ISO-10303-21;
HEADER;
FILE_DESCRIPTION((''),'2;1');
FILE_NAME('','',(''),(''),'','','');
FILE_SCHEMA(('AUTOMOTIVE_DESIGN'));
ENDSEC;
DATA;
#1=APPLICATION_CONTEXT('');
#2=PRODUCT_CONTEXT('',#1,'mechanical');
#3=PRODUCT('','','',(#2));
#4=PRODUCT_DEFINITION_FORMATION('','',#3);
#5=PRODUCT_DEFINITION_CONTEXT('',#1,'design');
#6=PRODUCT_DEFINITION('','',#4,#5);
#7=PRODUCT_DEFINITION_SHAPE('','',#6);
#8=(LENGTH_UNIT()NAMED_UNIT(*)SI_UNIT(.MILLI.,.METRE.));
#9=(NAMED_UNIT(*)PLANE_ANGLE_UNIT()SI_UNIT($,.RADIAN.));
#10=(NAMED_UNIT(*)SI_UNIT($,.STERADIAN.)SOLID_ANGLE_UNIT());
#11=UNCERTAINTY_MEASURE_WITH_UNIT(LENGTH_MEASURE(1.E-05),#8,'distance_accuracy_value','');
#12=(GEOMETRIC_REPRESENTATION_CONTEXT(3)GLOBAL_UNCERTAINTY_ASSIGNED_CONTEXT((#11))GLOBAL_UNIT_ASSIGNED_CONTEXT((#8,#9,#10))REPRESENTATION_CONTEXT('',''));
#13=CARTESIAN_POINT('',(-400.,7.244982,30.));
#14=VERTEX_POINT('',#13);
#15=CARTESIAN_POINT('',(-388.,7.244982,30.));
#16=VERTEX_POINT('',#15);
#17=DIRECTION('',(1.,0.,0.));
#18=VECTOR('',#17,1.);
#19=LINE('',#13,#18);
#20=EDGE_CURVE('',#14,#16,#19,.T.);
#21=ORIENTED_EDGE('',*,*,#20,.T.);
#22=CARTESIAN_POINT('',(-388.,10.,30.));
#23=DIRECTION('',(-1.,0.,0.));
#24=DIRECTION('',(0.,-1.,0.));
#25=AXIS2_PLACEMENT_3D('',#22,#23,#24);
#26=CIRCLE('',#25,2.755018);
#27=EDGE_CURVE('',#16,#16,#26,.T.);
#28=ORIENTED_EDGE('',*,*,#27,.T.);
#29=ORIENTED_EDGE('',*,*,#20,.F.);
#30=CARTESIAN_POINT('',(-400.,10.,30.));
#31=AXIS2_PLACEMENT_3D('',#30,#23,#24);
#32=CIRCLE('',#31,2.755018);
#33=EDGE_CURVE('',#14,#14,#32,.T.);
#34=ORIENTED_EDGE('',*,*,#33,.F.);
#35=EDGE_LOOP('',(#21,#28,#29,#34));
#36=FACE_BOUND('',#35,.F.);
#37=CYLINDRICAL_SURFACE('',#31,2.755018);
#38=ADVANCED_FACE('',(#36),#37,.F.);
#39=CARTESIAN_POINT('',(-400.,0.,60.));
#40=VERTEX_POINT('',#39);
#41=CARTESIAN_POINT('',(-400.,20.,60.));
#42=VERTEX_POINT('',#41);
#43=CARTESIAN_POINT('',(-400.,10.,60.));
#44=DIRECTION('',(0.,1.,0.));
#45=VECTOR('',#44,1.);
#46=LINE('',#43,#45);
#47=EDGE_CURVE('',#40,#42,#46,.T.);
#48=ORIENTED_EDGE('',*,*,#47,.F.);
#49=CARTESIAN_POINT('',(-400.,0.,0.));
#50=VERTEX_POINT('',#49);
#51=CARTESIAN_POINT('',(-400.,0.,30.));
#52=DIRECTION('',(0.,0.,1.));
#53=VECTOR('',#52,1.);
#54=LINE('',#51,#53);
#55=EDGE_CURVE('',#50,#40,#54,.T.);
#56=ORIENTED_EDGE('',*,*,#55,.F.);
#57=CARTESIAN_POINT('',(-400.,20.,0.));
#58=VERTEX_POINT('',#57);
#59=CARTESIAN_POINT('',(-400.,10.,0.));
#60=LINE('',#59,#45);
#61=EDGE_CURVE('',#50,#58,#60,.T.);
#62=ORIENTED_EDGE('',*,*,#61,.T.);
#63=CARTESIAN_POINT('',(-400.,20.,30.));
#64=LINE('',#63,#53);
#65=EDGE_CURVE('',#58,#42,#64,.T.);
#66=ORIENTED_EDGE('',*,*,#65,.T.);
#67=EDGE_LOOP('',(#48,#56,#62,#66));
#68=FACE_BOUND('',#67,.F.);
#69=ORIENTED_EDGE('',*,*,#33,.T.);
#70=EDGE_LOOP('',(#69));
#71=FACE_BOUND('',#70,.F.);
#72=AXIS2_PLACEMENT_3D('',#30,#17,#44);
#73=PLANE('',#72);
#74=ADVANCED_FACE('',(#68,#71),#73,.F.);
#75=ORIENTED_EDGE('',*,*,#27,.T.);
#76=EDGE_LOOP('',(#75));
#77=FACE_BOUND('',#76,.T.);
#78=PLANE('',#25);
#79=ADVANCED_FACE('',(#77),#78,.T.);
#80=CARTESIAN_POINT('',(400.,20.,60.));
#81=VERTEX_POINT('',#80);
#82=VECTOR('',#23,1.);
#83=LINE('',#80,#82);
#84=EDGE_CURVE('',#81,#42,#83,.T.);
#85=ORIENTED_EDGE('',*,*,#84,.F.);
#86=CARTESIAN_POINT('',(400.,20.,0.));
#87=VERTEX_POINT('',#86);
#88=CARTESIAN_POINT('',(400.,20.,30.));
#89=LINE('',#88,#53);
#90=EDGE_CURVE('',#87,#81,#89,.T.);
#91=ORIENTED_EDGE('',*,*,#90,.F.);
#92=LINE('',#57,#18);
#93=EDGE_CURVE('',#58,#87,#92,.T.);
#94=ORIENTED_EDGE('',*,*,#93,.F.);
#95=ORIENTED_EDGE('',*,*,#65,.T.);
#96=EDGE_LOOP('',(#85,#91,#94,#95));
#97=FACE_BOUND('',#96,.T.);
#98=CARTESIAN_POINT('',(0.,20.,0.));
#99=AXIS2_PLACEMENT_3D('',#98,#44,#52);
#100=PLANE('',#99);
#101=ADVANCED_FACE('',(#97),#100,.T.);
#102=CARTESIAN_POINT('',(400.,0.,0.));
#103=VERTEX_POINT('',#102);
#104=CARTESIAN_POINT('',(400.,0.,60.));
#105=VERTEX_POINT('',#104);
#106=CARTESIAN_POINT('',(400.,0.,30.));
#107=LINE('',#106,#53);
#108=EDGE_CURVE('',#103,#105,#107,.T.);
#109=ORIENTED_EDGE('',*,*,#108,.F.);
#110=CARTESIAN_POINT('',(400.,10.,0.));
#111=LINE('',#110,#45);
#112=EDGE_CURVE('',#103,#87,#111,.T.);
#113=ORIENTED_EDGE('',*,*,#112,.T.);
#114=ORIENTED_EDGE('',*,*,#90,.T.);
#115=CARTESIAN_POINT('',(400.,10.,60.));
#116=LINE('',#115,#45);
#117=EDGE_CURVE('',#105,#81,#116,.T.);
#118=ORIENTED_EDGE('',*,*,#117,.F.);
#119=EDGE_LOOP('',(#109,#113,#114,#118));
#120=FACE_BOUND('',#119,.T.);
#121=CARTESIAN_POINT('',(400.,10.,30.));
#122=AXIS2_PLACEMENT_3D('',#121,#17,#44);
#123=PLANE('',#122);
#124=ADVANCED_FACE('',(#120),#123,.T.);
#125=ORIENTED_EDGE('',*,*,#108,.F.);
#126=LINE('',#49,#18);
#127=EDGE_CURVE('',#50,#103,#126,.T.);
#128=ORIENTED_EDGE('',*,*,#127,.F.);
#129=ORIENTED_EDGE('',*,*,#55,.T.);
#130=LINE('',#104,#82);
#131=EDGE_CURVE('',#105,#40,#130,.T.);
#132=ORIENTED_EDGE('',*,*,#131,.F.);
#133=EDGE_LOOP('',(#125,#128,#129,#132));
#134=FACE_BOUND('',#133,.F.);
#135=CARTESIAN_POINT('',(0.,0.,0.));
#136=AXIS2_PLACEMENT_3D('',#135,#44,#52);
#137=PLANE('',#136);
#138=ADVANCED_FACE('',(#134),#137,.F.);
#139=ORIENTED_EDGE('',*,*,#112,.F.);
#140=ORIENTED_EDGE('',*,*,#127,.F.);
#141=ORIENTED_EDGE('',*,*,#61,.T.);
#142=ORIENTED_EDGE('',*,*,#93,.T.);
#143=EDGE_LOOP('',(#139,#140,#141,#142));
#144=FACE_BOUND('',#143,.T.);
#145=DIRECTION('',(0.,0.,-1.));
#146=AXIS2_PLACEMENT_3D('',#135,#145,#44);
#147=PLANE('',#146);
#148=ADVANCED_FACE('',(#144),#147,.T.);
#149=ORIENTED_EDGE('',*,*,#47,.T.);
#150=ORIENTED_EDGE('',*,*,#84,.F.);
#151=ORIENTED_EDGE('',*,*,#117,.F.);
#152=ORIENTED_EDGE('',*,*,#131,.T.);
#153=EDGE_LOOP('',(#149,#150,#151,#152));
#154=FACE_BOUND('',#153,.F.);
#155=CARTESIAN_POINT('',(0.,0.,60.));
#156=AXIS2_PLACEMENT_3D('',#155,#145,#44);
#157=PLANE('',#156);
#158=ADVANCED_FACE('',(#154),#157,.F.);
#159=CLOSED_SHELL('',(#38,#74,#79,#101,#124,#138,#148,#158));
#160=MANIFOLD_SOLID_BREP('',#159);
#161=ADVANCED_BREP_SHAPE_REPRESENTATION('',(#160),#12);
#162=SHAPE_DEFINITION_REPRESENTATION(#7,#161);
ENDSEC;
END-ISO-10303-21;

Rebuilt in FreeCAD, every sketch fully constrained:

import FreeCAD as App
import Part
import Sketcher
Q = App.Units.Quantity


def add_polygon(sketch, points):
    """Adds a closed chain of lines whose ends are joined by coincident constraints."""
    first, n = sketch.GeometryCount, len(points)
    for a, b in zip(points, points[1:] + points[:1]):
        sketch.addGeometry(Part.LineSegment(App.Vector(*a, 0), App.Vector(*b, 0)), False)
    for i in range(n):
        sketch.addConstraint(Sketcher.Constraint("Coincident", first + i, 2, first + (i + 1) % n, 1))

doc = App.newDocument("Part")
body = doc.addObject("PartDesign::Body", "Body")

sketch1 = body.newObject("Sketcher::SketchObject", "Sketch")
sketch1.AttachmentSupport = (doc.getObject("YZ_Plane"), [""])
sketch1.MapMode = "FlatFace"
add_polygon(sketch1, [(0, 60), (0, 0), (20, 0), (20, 60)])
sketch1.addConstraint([
    Sketcher.Constraint("Vertical", 0),
    Sketcher.Constraint("Horizontal", 1),
    Sketcher.Constraint("Vertical", 2),
    Sketcher.Constraint("Horizontal", 3),
    Sketcher.Constraint("Coincident", 0, 2, -1, 1),
    Sketcher.Constraint("DistanceX", 1, 1, 1, 2, Q("20 mm")),
    Sketcher.Constraint("DistanceY", 0, 2, 0, 1, Q("60 mm")),
])
pad1 = body.newObject("PartDesign::Pad", "Pad")
pad1.Profile = sketch1
pad1.Length = 800
pad1.Midplane = True

sketch2 = body.newObject("Sketcher::SketchObject", "Sketch001")
sketch2.AttachmentSupport = (doc.getObject("YZ_Plane"), [""])
sketch2.MapMode = "FlatFace"
sketch2.AttachmentOffset = App.Placement(App.Vector(0, 0, -400), App.Rotation())
sketch2.addGeometry(Part.Circle(App.Vector(10, 30, 0), App.Vector(0, 0, 1), 2.8), False)
sketch2.addConstraint([
    Sketcher.Constraint("DistanceX", -1, 1, 0, 3, Q("10 mm")),
    Sketcher.Constraint("DistanceY", -1, 1, 0, 3, Q("30 mm")),
    Sketcher.Constraint("Diameter", 0, Q("5.510036 mm")),
])
pocket1 = body.newObject("PartDesign::Pocket", "Pocket")
pocket1.Profile = sketch2
pocket1.Length = 12
pocket1.Reversed = True

doc.recompute()
